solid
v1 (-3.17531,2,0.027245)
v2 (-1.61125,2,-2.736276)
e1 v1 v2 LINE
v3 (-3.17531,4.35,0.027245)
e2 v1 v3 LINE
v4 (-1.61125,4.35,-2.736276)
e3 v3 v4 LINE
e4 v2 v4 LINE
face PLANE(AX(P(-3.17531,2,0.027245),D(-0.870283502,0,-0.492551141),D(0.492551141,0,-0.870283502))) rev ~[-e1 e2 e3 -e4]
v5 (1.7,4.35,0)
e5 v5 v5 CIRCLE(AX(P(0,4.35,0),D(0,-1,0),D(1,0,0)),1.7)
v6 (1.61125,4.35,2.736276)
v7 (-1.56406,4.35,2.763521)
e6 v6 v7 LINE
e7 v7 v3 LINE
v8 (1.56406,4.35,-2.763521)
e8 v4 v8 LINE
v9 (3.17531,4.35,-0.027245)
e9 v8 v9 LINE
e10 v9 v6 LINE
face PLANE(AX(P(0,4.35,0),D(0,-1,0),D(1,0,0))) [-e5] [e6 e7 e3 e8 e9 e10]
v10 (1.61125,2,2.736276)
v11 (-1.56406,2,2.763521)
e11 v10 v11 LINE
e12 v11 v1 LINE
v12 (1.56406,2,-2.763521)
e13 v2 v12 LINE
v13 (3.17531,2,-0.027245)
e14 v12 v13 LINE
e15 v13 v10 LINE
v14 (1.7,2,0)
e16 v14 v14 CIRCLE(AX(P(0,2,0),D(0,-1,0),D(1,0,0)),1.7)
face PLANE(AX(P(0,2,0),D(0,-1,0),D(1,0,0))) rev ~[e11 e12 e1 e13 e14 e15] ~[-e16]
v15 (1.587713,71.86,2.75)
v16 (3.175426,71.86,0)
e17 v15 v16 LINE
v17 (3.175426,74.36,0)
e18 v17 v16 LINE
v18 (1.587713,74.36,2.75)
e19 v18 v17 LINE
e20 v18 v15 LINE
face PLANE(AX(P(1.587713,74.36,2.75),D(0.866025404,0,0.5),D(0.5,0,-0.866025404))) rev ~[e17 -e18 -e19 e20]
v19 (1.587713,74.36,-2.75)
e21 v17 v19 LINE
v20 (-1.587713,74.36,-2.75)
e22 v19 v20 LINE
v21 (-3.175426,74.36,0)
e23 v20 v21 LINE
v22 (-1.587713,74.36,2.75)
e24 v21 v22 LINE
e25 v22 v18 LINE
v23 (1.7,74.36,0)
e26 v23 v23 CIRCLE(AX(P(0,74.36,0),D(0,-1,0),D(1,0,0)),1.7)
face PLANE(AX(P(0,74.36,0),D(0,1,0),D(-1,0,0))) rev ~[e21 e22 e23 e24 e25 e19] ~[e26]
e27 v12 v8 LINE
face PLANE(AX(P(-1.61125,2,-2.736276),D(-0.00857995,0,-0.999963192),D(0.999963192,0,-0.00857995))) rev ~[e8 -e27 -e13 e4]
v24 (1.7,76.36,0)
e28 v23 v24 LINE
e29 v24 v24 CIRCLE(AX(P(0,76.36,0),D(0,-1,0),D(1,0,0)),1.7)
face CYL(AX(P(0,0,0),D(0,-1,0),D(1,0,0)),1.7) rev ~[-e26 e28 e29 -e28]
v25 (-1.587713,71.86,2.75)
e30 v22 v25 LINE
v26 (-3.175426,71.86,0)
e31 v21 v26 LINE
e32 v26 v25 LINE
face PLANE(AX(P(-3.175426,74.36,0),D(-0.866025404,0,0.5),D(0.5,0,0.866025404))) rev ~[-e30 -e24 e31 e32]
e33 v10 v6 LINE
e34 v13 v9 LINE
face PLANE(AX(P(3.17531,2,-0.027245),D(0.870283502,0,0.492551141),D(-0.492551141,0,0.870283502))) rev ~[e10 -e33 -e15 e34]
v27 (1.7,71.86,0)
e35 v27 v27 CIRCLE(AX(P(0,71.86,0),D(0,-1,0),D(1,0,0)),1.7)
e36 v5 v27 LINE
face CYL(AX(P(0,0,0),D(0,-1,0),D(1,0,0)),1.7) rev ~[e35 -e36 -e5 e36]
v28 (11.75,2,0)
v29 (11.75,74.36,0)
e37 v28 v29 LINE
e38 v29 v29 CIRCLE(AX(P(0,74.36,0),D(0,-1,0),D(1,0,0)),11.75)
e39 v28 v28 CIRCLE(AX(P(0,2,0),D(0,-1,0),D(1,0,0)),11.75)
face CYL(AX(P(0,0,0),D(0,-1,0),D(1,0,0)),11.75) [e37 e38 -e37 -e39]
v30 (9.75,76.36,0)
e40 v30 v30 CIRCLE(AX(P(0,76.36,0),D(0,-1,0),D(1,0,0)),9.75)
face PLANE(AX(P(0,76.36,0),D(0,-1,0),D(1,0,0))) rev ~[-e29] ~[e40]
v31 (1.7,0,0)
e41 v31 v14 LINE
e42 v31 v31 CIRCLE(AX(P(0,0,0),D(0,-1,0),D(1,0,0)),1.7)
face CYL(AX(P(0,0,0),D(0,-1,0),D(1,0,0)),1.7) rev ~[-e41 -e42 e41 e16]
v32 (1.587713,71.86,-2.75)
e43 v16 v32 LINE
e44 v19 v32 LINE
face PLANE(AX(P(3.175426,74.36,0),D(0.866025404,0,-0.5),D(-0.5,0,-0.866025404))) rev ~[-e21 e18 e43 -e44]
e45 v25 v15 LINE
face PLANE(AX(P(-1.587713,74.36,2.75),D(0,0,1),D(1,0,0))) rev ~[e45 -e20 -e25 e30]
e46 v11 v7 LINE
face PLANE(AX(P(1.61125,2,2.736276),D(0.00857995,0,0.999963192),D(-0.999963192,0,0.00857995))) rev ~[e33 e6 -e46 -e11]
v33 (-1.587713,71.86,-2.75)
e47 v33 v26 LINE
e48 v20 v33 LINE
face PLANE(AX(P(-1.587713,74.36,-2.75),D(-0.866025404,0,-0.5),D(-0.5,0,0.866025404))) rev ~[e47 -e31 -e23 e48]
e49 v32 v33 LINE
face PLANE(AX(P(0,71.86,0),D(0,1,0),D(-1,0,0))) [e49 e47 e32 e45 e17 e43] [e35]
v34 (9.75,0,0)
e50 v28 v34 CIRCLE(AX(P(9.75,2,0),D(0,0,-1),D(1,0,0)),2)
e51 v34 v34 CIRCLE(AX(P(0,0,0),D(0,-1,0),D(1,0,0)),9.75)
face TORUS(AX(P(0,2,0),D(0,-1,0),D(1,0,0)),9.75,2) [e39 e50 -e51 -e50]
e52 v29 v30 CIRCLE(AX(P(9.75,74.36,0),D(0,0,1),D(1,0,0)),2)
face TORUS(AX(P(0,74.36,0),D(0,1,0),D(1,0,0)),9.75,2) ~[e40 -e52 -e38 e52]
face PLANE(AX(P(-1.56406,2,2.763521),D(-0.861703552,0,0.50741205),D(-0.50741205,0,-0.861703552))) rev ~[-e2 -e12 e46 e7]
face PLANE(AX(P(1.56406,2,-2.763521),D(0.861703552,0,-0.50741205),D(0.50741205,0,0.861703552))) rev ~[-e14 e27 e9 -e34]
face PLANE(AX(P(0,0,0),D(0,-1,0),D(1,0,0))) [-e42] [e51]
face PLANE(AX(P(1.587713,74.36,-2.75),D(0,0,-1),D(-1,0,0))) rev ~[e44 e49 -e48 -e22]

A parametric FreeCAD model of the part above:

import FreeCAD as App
import Part
import Sketcher

V = App.Vector
Q = App.Units.Quantity


def edges_at(feature, points):
    """Names of the edges that pass closest to the given points."""
    edges = feature.Shape.Edges
    near = lambda p: min(range(len(edges)), key=lambda i: edges[i].distToShape(Part.Vertex(*p))[0])
    return sorted({f"Edge{near(p) + 1}" for p in points})


def add_polygon(sketch, points):
    """Adds a closed chain of lines whose ends are joined by coincident constraints."""
    first, n = sketch.GeometryCount, len(points)
    for a, b in zip(points, points[1:] + points[:1]):
        sketch.addGeometry(Part.LineSegment(App.Vector(*a, 0), App.Vector(*b, 0)), False)
    for i in range(n):
        sketch.addConstraint(Sketcher.Constraint("Coincident", first + i, 2, first + (i + 1) % n, 1))

doc = App.newDocument("Part")
params = doc.addObject("Spreadsheet::Sheet", "Params")
for row, (alias, value) in enumerate([
    ("sketch1_diameter", "23.5 mm"),
    ("pad1_length", "76.36 mm"),
    ("fillet_radius", "2 mm"),
    ("sketch2_diameter", "3.4 mm"),
    ("pocket1_length", "2.35 mm"),
    ("sketch3_diameter", "3.4 mm"),
    ("pocket2_length", "89.7 mm"),
    ("sketch4_diameter", "3.4 mm"),
    ("pocket3_length", "2.5 mm"),
], start=1):
    params.set(f"A{row}", alias)
    params.set(f"B{row}", "=" + value)
    params.setAlias(f"B{row}", alias)

body = doc.addObject("PartDesign::Body", "Body")

# Sketch on XZ plane
sketch1 = doc.addObject("Sketcher::SketchObject", "Sketch")
body.addObject(sketch1)
sketch1.AttachmentSupport = (doc.XZ_Plane, [""])
sketch1.MapMode = "FlatFace"
sketch1.addGeometry(Part.Circle(V(0, 0, 0), V(0, 0, 1), 12), False)
sketch1.addConstraint(Sketcher.Constraint("Coincident", 0, 3, -1, 1))
sketch1.addConstraint(Sketcher.Constraint("Diameter", 0, Q("23.5 mm")))
sketch1.setExpression("Constraints[1]", "Params.sketch1_diameter")
pad1 = doc.addObject("PartDesign::Pad", "Pad")
body.addObject(pad1)
pad1.Profile = sketch1
pad1.setExpression("Length", "Params.pad1_length")
pad1.Reversed = True
doc.recompute()

fillet = doc.addObject("PartDesign::Fillet", "Fillet")
body.addObject(fillet)
fillet.Base = (pad1, edges_at(pad1, [(-11.75, 0, 0), (-11.75, 76.36, 0)]))
fillet.setExpression("Radius", "Params.fillet_radius")

# Sketch on XZ plane
sketch2 = doc.addObject("Sketcher::SketchObject", "Sketch001")
body.addObject(sketch2)
sketch2.AttachmentSupport = (doc.XZ_Plane, [""])
sketch2.MapMode = "FlatFace"
sketch2.AttachmentOffset = App.Placement(V(0, 0, -2), App.Rotation())
add_polygon(sketch2, [(1.6, -2.8), (3.2, 0), (1.6, 2.7), (-1.6, 2.8), (-3.2, 0), (-1.6, -2.7)])  # lines 0-5
sketch2.addGeometry(Part.Circle(V(0, 0, 0), V(0, 0, 1), 1.7), False)  # 6
sketch2.addConstraint(Sketcher.Constraint("Coincident", 6, 3, -1, 1))
sketch2.addConstraint(Sketcher.Constraint("Symmetric", 0, 2, 3, 2, -1, 1))
sketch2.addConstraint(Sketcher.Constraint("Symmetric", 1, 2, 4, 2, -1, 1))
sketch2.addConstraint(Sketcher.Constraint("Symmetric", 2, 2, 5, 2, -1, 1))
sketch2.addConstraint(Sketcher.Constraint("Equal", 0, 1))
sketch2.addConstraint(Sketcher.Constraint("Equal", 1, 2))
sketch2.addConstraint(Sketcher.Constraint("Diameter", 6, Q("3.4 mm")))
sketch2.addConstraint(Sketcher.Constraint("DistanceX", 4, 2, 1, 2, Q("3.222499 mm")))
sketch2.addConstraint(Sketcher.Constraint("DistanceX", -1, 1, 0, 2, Q("3.17531 mm")))
sketch2.addConstraint(Sketcher.Constraint("DistanceX", 2, 2, -1, 1, Q("1.56406 mm")))
sketch2.addConstraint(Sketcher.Constraint("DistanceY", -1, 1, 2, 2, Q("2.763521 mm")))
sketch2.setExpression("Constraints[12]", "Params.sketch2_diameter")
pocket1 = doc.addObject("PartDesign::Pocket", "Pocket")
body.addObject(pocket1)
pocket1.Profile = sketch2
pocket1.setExpression("Length", "Params.pocket1_length")

# Sketch on XZ plane
sketch3 = doc.addObject("Sketcher::SketchObject", "Sketch002")
body.addObject(sketch3)
sketch3.AttachmentSupport = (doc.XZ_Plane, [""])
sketch3.MapMode = "FlatFace"
sketch3.addGeometry(Part.Circle(V(0, 0, 0), V(0, 0, 1), 1.7), False)
sketch3.addConstraint(Sketcher.Constraint("Coincident", 0, 3, -1, 1))
sketch3.addConstraint(Sketcher.Constraint("Diameter", 0, Q("3.4 mm")))
sketch3.setExpression("Constraints[1]", "Params.sketch3_diameter")
pocket2 = doc.addObject("PartDesign::Pocket", "Pocket001")
body.addObject(pocket2)
pocket2.Profile = sketch3
pocket2.setExpression("Length", "Params.pocket2_length")

# Sketch on XZ plane
sketch4 = doc.addObject("Sketcher::SketchObject", "Sketch003")
body.addObject(sketch4)
sketch4.AttachmentSupport = (doc.XZ_Plane, [""])
sketch4.MapMode = "FlatFace"
sketch4.AttachmentOffset = App.Placement(V(0, 0, -74.36), App.Rotation())
add_polygon(sketch4, [(1.6, -2.8), (-1.6, -2.8), (-3.2, 0), (-1.6, 2.8), (1.6, 2.8), (3.2, 0)])  # lines 0-5
sketch4.addGeometry(Part.Circle(V(0, 0, 0), V(0, 0, 1), 1.7), False)  # 6
sketch4.addConstraint(Sketcher.Constraint("Horizontal", 0))
sketch4.addConstraint(Sketcher.Constraint("Horizontal", 3))
sketch4.addConstraint(Sketcher.Constraint("Coincident", 6, 3, -1, 1))
sketch4.addConstraint(Sketcher.Constraint("Symmetric", 0, 2, 3, 2, -1, 1))
sketch4.addConstraint(Sketcher.Constraint("Symmetric", 1, 2, 4, 2, -1, 1))
sketch4.addConstraint(Sketcher.Constraint("PointOnObject", 1, 2, -1))
sketch4.addConstraint(Sketcher.Constraint("Parallel", 2, 5))
sketch4.addConstraint(Sketcher.Constraint("Vertical", 0, 2, 2, 2))
sketch4.addConstraint(Sketcher.Constraint("Diameter", 6, Q("3.4 mm")))
sketch4.addConstraint(Sketcher.Constraint("Angle", 1, Q("120 deg")))
sketch4.addConstraint(Sketcher.Constraint("DistanceY", 0, 2, 2, 2, Q("5.5 mm")))
sketch4.addConstraint(Sketcher.Constraint("DistanceX", 0, 2, 0, 1, Q("3.175426 mm")))
sketch4.setExpression("Constraints[14]", "Params.sketch4_diameter")
pocket3 = doc.addObject("PartDesign::Pocket", "Pocket002")
body.addObject(pocket3)
pocket3.Profile = sketch4
pocket3.setExpression("Length", "Params.pocket3_length")
pocket3.Reversed = True

doc.recompute()
